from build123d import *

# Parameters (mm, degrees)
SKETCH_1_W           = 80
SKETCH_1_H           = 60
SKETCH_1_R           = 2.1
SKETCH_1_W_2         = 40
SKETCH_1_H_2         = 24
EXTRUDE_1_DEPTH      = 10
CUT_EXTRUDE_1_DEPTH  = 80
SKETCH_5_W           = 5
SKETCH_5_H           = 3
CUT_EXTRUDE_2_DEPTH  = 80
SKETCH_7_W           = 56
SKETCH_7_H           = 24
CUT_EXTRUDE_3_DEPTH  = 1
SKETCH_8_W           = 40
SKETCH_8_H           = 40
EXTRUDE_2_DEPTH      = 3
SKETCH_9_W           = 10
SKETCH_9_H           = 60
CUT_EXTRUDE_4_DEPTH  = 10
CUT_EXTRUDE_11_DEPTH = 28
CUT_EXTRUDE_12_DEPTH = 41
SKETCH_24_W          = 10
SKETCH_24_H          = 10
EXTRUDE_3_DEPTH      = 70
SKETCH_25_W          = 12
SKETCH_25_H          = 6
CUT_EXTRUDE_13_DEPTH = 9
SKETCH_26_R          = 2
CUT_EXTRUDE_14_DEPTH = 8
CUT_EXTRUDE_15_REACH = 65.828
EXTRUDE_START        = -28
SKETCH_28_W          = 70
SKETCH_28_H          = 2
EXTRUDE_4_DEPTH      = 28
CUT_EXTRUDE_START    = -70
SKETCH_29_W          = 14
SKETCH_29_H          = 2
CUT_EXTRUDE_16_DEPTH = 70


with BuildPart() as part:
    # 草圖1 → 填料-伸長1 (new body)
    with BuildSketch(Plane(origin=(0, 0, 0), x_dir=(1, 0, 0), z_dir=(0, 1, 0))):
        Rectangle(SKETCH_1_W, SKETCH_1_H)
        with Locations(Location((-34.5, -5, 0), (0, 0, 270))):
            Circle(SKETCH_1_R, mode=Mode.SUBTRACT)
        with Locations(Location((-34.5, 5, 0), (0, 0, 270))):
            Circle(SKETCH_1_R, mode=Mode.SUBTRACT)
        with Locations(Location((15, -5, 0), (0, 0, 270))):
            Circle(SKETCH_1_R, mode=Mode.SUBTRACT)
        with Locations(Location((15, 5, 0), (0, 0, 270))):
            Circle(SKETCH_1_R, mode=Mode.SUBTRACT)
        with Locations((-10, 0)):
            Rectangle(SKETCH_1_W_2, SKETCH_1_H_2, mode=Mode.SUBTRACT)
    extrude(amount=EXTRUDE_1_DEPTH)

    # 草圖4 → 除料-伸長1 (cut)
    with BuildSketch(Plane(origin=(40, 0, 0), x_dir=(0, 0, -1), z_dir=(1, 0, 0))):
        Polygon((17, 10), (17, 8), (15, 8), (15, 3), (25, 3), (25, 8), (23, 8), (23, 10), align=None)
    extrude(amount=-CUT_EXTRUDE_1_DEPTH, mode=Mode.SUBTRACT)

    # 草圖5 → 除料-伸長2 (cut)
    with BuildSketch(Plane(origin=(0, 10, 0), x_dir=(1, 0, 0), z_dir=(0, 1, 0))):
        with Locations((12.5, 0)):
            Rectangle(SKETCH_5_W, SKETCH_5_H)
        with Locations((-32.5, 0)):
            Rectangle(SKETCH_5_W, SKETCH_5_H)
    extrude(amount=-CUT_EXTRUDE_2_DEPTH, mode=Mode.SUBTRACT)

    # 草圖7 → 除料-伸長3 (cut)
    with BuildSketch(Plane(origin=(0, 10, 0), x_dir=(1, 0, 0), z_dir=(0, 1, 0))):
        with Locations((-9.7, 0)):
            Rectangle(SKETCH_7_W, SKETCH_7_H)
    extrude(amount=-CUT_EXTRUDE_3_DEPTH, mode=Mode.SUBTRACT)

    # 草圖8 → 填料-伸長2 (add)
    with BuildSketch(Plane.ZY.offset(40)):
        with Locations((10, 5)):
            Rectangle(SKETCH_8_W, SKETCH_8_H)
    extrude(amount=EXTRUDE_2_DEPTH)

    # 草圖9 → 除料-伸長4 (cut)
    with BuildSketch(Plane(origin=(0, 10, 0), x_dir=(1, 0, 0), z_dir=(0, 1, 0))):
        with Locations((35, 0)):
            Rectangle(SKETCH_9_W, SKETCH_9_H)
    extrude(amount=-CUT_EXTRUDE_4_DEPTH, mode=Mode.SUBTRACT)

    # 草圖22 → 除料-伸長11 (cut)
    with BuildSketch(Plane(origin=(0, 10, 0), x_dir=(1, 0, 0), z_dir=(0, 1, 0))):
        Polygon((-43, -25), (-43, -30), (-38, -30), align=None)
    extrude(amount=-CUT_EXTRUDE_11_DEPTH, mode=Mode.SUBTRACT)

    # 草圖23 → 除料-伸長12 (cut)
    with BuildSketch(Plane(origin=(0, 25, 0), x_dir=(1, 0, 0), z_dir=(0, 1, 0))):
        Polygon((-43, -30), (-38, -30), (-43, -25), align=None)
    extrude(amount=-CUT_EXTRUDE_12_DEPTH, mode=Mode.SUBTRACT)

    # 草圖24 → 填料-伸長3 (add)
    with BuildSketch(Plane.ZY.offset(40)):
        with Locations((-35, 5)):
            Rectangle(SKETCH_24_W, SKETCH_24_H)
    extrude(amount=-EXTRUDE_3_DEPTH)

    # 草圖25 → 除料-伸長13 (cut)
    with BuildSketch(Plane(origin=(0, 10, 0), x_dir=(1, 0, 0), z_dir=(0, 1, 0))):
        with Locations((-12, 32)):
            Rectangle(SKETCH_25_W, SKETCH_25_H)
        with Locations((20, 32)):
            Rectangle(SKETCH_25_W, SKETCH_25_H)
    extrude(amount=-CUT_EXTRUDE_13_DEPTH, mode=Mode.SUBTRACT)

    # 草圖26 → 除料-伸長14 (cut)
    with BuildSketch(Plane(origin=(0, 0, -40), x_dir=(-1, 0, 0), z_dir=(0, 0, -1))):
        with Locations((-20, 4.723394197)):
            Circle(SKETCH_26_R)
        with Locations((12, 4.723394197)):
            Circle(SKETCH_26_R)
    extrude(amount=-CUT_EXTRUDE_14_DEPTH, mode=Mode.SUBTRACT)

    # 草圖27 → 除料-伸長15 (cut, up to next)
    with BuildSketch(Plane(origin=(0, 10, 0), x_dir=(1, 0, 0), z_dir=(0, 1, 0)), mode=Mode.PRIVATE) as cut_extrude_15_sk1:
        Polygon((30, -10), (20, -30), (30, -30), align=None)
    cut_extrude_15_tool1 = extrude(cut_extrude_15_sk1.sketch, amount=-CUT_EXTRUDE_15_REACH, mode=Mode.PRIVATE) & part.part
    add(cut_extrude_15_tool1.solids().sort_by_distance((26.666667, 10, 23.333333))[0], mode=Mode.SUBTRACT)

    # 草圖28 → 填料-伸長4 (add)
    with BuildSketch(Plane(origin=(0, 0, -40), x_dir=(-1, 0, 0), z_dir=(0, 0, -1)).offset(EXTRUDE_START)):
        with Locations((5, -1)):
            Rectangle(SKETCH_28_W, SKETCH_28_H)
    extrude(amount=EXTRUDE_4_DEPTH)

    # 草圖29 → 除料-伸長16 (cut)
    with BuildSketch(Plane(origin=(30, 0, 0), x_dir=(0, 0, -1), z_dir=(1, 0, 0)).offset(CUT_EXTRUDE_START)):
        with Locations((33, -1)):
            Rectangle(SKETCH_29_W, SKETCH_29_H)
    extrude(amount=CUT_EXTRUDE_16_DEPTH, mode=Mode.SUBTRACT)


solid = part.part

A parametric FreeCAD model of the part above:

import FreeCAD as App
import Part
import Sketcher

V = App.Vector


def add_polygon(sketch, points):
    """Adds a closed chain of lines whose ends are joined by coincident constraints."""
    first, n = sketch.GeometryCount, len(points)
    for a, b in zip(points, points[1:] + points[:1]):
        sketch.addGeometry(Part.LineSegment(App.Vector(*a, 0), App.Vector(*b, 0)), False)
    for i in range(n):
        sketch.addConstraint(Sketcher.Constraint("Coincident", first + i, 2, first + (i + 1) % n, 1))

doc = App.newDocument("Part")
body = doc.addObject("PartDesign::Body", "Body")

# Sketch on XZ plane
sketch1 = body.newObject("Sketcher::SketchObject", "Sketch")
sketch1.AttachmentSupport = (doc.getObject("XZ_Plane"), [""])
sketch1.MapMode = "FlatFace"
add_polygon(sketch1, [(-40, -30), (-40, 30), (40, 30), (40, -30)])  # lines 0-3
sketch1.addGeometry(Part.Circle(V(-34.5, 5, 0), V(0, 0, 1), 2.1), False)  # 4
sketch1.addGeometry(Part.Circle(V(15, 5, 0), V(0, 0, 1), 2.1), False)  # 5
sketch1.addGeometry(Part.Circle(V(-34.5, -5, 0), V(0, 0, 1), 2.1), False)  # 6
add_polygon(sketch1, [(10, 12), (-30, 12), (-30, -12), (10, -12)])  # lines 7-10
sketch1.addGeometry(Part.Circle(V(15, -5, 0), V(0, 0, 1), 2.1), False)  # 11
sketch1.addConstraint([
    Sketcher.Constraint("Vertical", 0),
    Sketcher.Constraint("Horizontal", 1),
    Sketcher.Constraint("Vertical", 2),
    Sketcher.Constraint("Horizontal", 3),
    Sketcher.Constraint("Horizontal", 7),
    Sketcher.Constraint("Vertical", 8),
    Sketcher.Constraint("Horizontal", 9),
    Sketcher.Constraint("Vertical", 10),
    Sketcher.Constraint("Equal", 4, 5),
    Sketcher.Constraint("Equal", 5, 6),
    Sketcher.Constraint("Equal", 6, 11),
    Sketcher.Constraint("Symmetric", 0, 2, 2, 2, -1, 1),
    Sketcher.Constraint("Symmetric", 4, 3, 6, 3, -1),
    Sketcher.Constraint("Symmetric", 5, 3, 11, 3, -1),
    Sketcher.Constraint("Horizontal", 4, 3, 5, 3),
    Sketcher.Constraint("Diameter", 4, 4.2),
    Sketcher.Constraint("DistanceX", 1, 1, 1, 2, 80.0),
    Sketcher.Constraint("DistanceX", 7, 2, 7, 1, 40.0),
    Sketcher.Constraint("DistanceY", 0, 1, 0, 2, 60.0),
    Sketcher.Constraint("DistanceY", 8, 2, 8, 1, 24.0),
    Sketcher.Constraint("DistanceY", -1, 1, 4, 3, 5.0),
    Sketcher.Constraint("DistanceX", -1, 1, 5, 3, 15.0),
    Sketcher.Constraint("DistanceX", 7, 2, -1, 1, 30.0),
    Sketcher.Constraint("DistanceY", -1, 1, 7, 2, 12.0),
    Sketcher.Constraint("DistanceX", 4, 3, -1, 1, 34.5),
])
pad1 = body.newObject("PartDesign::Pad", "Pad")
pad1.Profile = sketch1
pad1.Length = 10
pad1.Reversed = True

# Sketch on YZ plane
sketch2 = body.newObject("Sketcher::SketchObject", "Sketch001")
sketch2.AttachmentSupport = (doc.getObject("YZ_Plane"), [""])
sketch2.MapMode = "FlatFace"
sketch2.AttachmentOffset = App.Placement(V(0, 0, 40), App.Rotation())
add_polygon(sketch2, [(10, -17), (8, -17), (8, -15), (3, -15), (3, -25), (8, -25), (8, -23), (10, -23)])  # lines 0-7
sketch2.addConstraint([
    Sketcher.Constraint("Horizontal", 0),
    Sketcher.Constraint("Vertical", 1),
    Sketcher.Constraint("Horizontal", 2),
    Sketcher.Constraint("Vertical", 3),
    Sketcher.Constraint("Horizontal", 4),
    Sketcher.Constraint("Vertical", 5),
    Sketcher.Constraint("Horizontal", 6),
    Sketcher.Constraint("Vertical", 7),
    Sketcher.Constraint("Vertical", 1, 2, 4, 2),
    Sketcher.Constraint("Equal", 6, 1),
    Sketcher.Constraint("Equal", 1, 5),
    Sketcher.Constraint("DistanceX", 0, 2, 0, 1, 2.0),
    Sketcher.Constraint("DistanceX", 2, 2, 2, 1, 5.0),
    Sketcher.Constraint("DistanceY", 3, 2, 3, 1, 10.0),
    Sketcher.Constraint("DistanceX", -1, 1, 0, 2, 8.0),
    Sketcher.Constraint("DistanceY", 0, 2, -1, 1, 17.0),
])
pocket1 = body.newObject("PartDesign::Pocket", "Pocket")
pocket1.Profile = sketch2
pocket1.Length = 80

# Sketch on XZ plane
sketch3 = body.newObject("Sketcher::SketchObject", "Sketch002")
sketch3.AttachmentSupport = (doc.getObject("XZ_Plane"), [""])
sketch3.MapMode = "FlatFace"
sketch3.AttachmentOffset = App.Placement(V(0, 0, -10), App.Rotation())
add_polygon(sketch3, [(10, -1.5), (10, 1.5), (15, 1.5), (15, -1.5)])  # lines 0-3
add_polygon(sketch3, [(-35, -1.5), (-35, 1.5), (-30, 1.5), (-30, -1.5)])  # lines 4-7
sketch3.addConstraint([
    Sketcher.Constraint("Vertical", 0),
    Sketcher.Constraint("Horizontal", 1),
    Sketcher.Constraint("Vertical", 2),
    Sketcher.Constraint("Horizontal", 3),
    Sketcher.Constraint("Vertical", 4),
    Sketcher.Constraint("Horizontal", 5),
    Sketcher.Constraint("Vertical", 6),
    Sketcher.Constraint("Horizontal", 7),
    Sketcher.Constraint("Horizontal", 1, 2, 4, 2),
    Sketcher.Constraint("Horizontal", 3, 2, 6, 2),
    Sketcher.Constraint("Equal", 3, 5),
    Sketcher.Constraint("DistanceX", 1, 1, 1, 2, 5.0),
    Sketcher.Constraint("DistanceY", 0, 1, 0, 2, 3.0),
    Sketcher.Constraint("DistanceX", -1, 1, 0, 2, 10.0),
    Sketcher.Constraint("DistanceX", 4, 2, -1, 1, 35.0),
    Sketcher.Constraint("DistanceY", -1, 1, 0, 2, 1.5),
])
pocket2 = body.newObject("PartDesign::Pocket", "Pocket001")
pocket2.Profile = sketch3
pocket2.Length = 80
pocket2.Reversed = True

# Sketch on XZ plane
sketch4 = body.newObject("Sketcher::SketchObject", "Sketch003")
sketch4.AttachmentSupport = (doc.getObject("XZ_Plane"), [""])
sketch4.MapMode = "FlatFace"
sketch4.AttachmentOffset = App.Placement(V(0, 0, -10), App.Rotation())
add_polygon(sketch4, [(-38, -12), (-38, 12), (18, 12), (18, -12)])  # lines 0-3
sketch4.addConstraint([
    Sketcher.Constraint("Vertical", 0),
    Sketcher.Constraint("Horizontal", 1),
    Sketcher.Constraint("Vertical", 2),
    Sketcher.Constraint("Horizontal", 3),
    Sketcher.Constraint("DistanceX", 1, 1, 1, 2, 56.0),
    Sketcher.Constraint("DistanceY", 0, 1, 0, 2, 24.0),
    Sketcher.Constraint("DistanceY", -1, 1, 0, 2, 12.0),
    Sketcher.Constraint("DistanceX", 0, 2, -1, 1, 37.7),
])
pocket3 = body.newObject("PartDesign::Pocket", "Pocket002")
pocket3.Profile = sketch4
pocket3.Length = 1
pocket3.Reversed = True

# Sketch on YZ plane
sketch5 = body.newObject("Sketcher::SketchObject", "Sketch004")
sketch5.AttachmentSupport = (doc.getObject("YZ_Plane"), [""])
sketch5.MapMode = "FlatFace"
sketch5.AttachmentOffset = App.Placement(V(0, 0, -40), App.Rotation())
add_polygon(sketch5, [(25, -10), (-15, -10), (-15, 30), (25, 30)])  # lines 0-3
sketch5.addConstraint([
    Sketcher.Constraint("Horizontal", 0),
    Sketcher.Constraint("Vertical", 1),
    Sketcher.Constraint("Horizontal", 2),
    Sketcher.Constraint("Vertical", 3),
    Sketcher.Constraint("Equal", 2, 1),
    Sketcher.Constraint("DistanceX", 0, 2, 0, 1, 40.0),
    Sketcher.Constraint("DistanceX", 0, 2, -1, 1, 15.0),
    Sketcher.Constraint("DistanceY", 0, 2, -1, 1, 10.0),
])
pad2 = body.newObject("PartDesign::Pad", "Pad001")
pad2.Profile = sketch5
pad2.Length = 3
pad2.Reversed = True

# Sketch on XZ plane
sketch6 = body.newObject("Sketcher::SketchObject", "Sketch005")
sketch6.AttachmentSupport = (doc.getObject("XZ_Plane"), [""])
sketch6.MapMode = "FlatFace"
sketch6.AttachmentOffset = App.Placement(V(0, 0, -10), App.Rotation())
add_polygon(sketch6, [(30, -30), (30, 30), (40, 30), (40, -30)])  # lines 0-3
sketch6.addConstraint([
    Sketcher.Constraint("Vertical", 0),
    Sketcher.Constraint("Horizontal", 1),
    Sketcher.Constraint("Vertical", 2),
    Sketcher.Constraint("Horizontal", 3),
    Sketcher.Constraint("DistanceX", 1, 1, 1, 2, 10.0),
    Sketcher.Constraint("DistanceY", 0, 1, 0, 2, 60.0),
    Sketcher.Constraint("DistanceX", -1, 1, 0, 2, 30.0),
    Sketcher.Constraint("DistanceY", -1, 1, 0, 2, 30.0),
])
pocket4 = body.newObject("PartDesign::Pocket", "Pocket003")
pocket4.Profile = sketch6
pocket4.Length = 10
pocket4.Reversed = True

# Sketch on XZ plane
sketch7 = body.newObject("Sketcher::SketchObject", "Sketch006")
sketch7.AttachmentSupport = (doc.getObject("XZ_Plane"), [""])
sketch7.MapMode = "FlatFace"
sketch7.AttachmentOffset = App.Placement(V(0, 0, -10), App.Rotation())
add_polygon(sketch7, [(-43, 25), (-43, 30), (-38, 30)])  # lines 0-2
sketch7.addConstraint([
    Sketcher.Constraint("Vertical", 0),
    Sketcher.Constraint("Horizontal", 1),
    Sketcher.Constraint("Equal", 1, 0),
    Sketcher.Constraint("DistanceX", 1, 1, 1, 2, 5.0),
    Sketcher.Constraint("DistanceX", 0, 2, -1, 1, 43.0),
    Sketcher.Constraint("DistanceY", -1, 1, 0, 2, 30.0),
])
pocket5 = body.newObject("PartDesign::Pocket", "Pocket004")
pocket5.Profile = sketch7
pocket5.Length = 28
pocket5.Reversed = True

# Sketch on XZ plane
sketch8 = body.newObject("Sketcher::SketchObject", "Sketch007")
sketch8.AttachmentSupport = (doc.getObject("XZ_Plane"), [""])
sketch8.MapMode = "FlatFace"
sketch8.AttachmentOffset = App.Placement(V(0, 0, -25), App.Rotation())
add_polygon(sketch8, [(-43, 30), (-38, 30), (-43, 25)])  # lines 0-2
sketch8.addConstraint([
    Sketcher.Constraint("Horizontal", 0),
    Sketcher.Constraint("Vertical", 2),
    Sketcher.Constraint("Equal", 0, 2),
    Sketcher.Constraint("DistanceX", 0, 1, 0, 2, 5.0),
    Sketcher.Constraint("DistanceX", 0, 2, -1, 1, 38.0),
    Sketcher.Constraint("DistanceY", -1, 1, 0, 2, 30.0),
])
pocket6 = body.newObject("PartDesign::Pocket", "Pocket005")
pocket6.Profile = sketch8
pocket6.Length = 41
pocket6.Reversed = True

# Sketch on YZ plane
sketch9 = body.newObject("Sketcher::SketchObject", "Sketch008")
sketch9.AttachmentSupport = (doc.getObject("YZ_Plane"), [""])
sketch9.MapMode = "FlatFace"
sketch9.AttachmentOffset = App.Placement(V(0, 0, -40), App.Rotation())
add_polygon(sketch9, [(10, -40), (0, -40), (0, -30), (10, -30)])  # lines 0-3
sketch9.addConstraint([
    Sketcher.Constraint("Horizontal", 0),
    Sketcher.Constraint("Vertical", 1),
    Sketcher.Constraint("Horizontal", 2),
    Sketcher.Constraint("Vertical", 3),
    Sketcher.Constraint("PointOnObject", 0, 2, -2),
    Sketcher.Constraint("Equal", 2, 1),
    Sketcher.Constraint("DistanceX", 0, 2, 0, 1, 10.0),
    Sketcher.Constraint("DistanceY", 0, 2, -1, 1, 40.0),
])
pad3 = body.newObject("PartDesign::Pad", "Pad002")
pad3.Profile = sketch9
pad3.Length = 70

# Sketch on XZ plane
sketch10 = body.newObject("Sketcher::SketchObject", "Sketch009")
sketch10.AttachmentSupport = (doc.getObject("XZ_Plane"), [""])
sketch10.MapMode = "FlatFace"
sketch10.AttachmentOffset = App.Placement(V(0, 0, -10), App.Rotation())
add_polygon(sketch10, [(-18, -35), (-18, -29), (-6, -29), (-6, -35)])  # lines 0-3
add_polygon(sketch10, [(14, -35), (14, -29), (26, -29), (26, -35)])  # lines 4-7
sketch10.addConstraint([
    Sketcher.Constraint("Vertical", 0),
    Sketcher.Constraint("Horizontal", 1),
    Sketcher.Constraint("Vertical", 2),
    Sketcher.Constraint("Horizontal", 3),
    Sketcher.Constraint("Vertical", 4),
    Sketcher.Constraint("Horizontal", 5),
    Sketcher.Constraint("Vertical", 6),
    Sketcher.Constraint("Horizontal", 7),
    Sketcher.Constraint("Horizontal", 1, 2, 4, 2),
    Sketcher.Constraint("Horizontal", 3, 2, 6, 2),
    Sketcher.Constraint("Equal", 3, 5),
    Sketcher.Constraint("DistanceX", 1, 1, 1, 2, 12.0),
    Sketcher.Constraint("DistanceY", 0, 1, 0, 2, 6.0),
    Sketcher.Constraint("DistanceX", 0, 2, -1, 1, 18.0),
    Sketcher.Constraint("DistanceY", 0, 2, -1, 1, 29.0),
    Sketcher.Constraint("DistanceX", -1, 1, 4, 2, 14.0),
])
pocket7 = body.newObject("PartDesign::Pocket", "Pocket006")
pocket7.Profile = sketch10
pocket7.Length = 9
pocket7.Reversed = True

# Sketch on XY plane
sketch11 = body.newObject("Sketcher::SketchObject", "Sketch010")
sketch11.AttachmentSupport = (doc.getObject("XY_Plane"), [""])
sketch11.MapMode = "FlatFace"
sketch11.AttachmentOffset = App.Placement(V(0, 0, -40), App.Rotation())
sketch11.addGeometry([
    Part.Circle(V(20, 4.7, 0), V(0, 0, 1), 2),
    Part.Circle(V(-12, 4.7, 0), V(0, 0, 1), 2),
], False)
sketch11.addConstraint([
    Sketcher.Constraint("Equal", 0, 1),
    Sketcher.Constraint("Horizontal", 0, 3, 1, 3),
    Sketcher.Constraint("Diameter", 0, 4.0),
    Sketcher.Constraint("DistanceX", -1, 1, 0, 3, 20.0),
    Sketcher.Constraint("DistanceX", 1, 3, -1, 1, 12.0),
    Sketcher.Constraint("DistanceY", -1, 1, 0, 3, 4.723394),
])
pocket8 = body.newObject("PartDesign::Pocket", "Pocket007")
pocket8.Profile = sketch11
pocket8.Length = 8
pocket8.Reversed = True

# Sketch on XZ plane
sketch12 = body.newObject("Sketcher::SketchObject", "Sketch011")
sketch12.AttachmentSupport = (doc.getObject("XZ_Plane"), [""])
sketch12.MapMode = "FlatFace"
sketch12.AttachmentOffset = App.Placement(V(0, 0, -10), App.Rotation())
add_polygon(sketch12, [(30, 10), (20, 30), (30, 30)])  # lines 0-2
sketch12.addConstraint([
    Sketcher.Constraint("Horizontal", 1),
    Sketcher.Constraint("Vertical", 2),
    Sketcher.Constraint("DistanceX", 1, 1, 1, 2, 10.0),
    Sketcher.Constraint("DistanceY", 2, 2, 2, 1, 20.0),
    Sketcher.Constraint("DistanceX", -1, 1, 0, 2, 20.0),
    Sketcher.Constraint("DistanceY", -1, 1, 0, 2, 30.0),
])
pocket9 = body.newObject("PartDesign::Pocket", "Pocket008")
pocket9.Profile = sketch12
pocket9.Type = "UpToFirst"
pocket9.Reversed = True

# Sketch on XY plane
sketch13 = body.newObject("Sketcher::SketchObject", "Sketch012")
sketch13.AttachmentSupport = (doc.getObject("XY_Plane"), [""])
sketch13.MapMode = "FlatFace"
sketch13.AttachmentOffset = App.Placement(V(0, 0, -12), App.Rotation())
add_polygon(sketch13, [(30, 0), (30, -2), (-40, -2), (-40, 0)])  # lines 0-3
sketch13.addConstraint([
    Sketcher.Constraint("Vertical", 0),
    Sketcher.Constraint("Horizontal", 1),
    Sketcher.Constraint("Vertical", 2),
    Sketcher.Constraint("Horizontal", 3),
    Sketcher.Constraint("PointOnObject", 2, 2, -1),
    Sketcher.Constraint("DistanceX", 1, 2, 1, 1, 70.0),
    Sketcher.Constraint("DistanceY", 0, 2, 0, 1, 2.0),
    Sketcher.Constraint("DistanceX", -1, 1, 0, 2, 30.0),
])
pad4 = body.newObject("PartDesign::Pad", "Pad003")
pad4.Profile = sketch13
pad4.Length = 28
pad4.Reversed = True

# Sketch on YZ plane
sketch14 = body.newObject("Sketcher::SketchObject", "Sketch013")
sketch14.AttachmentSupport = (doc.getObject("YZ_Plane"), [""])
sketch14.MapMode = "FlatFace"
sketch14.AttachmentOffset = App.Placement(V(0, 0, -40), App.Rotation())
add_polygon(sketch14, [(0, -26), (-2, -26), (-2, -40), (0, -40)])  # lines 0-3
sketch14.addConstraint([
    Sketcher.Constraint("Horizontal", 0),
    Sketcher.Constraint("Vertical", 1),
    Sketcher.Constraint("Horizontal", 2),
    Sketcher.Constraint("Vertical", 3),
    Sketcher.Constraint("PointOnObject", 2, 2, -2),
    Sketcher.Constraint("DistanceX", 0, 2, 0, 1, 2.0),
    Sketcher.Constraint("DistanceY", 1, 2, 1, 1, 14.0),
    Sketcher.Constraint("DistanceY", 0, 2, -1, 1, 26.0),
])
pocket10 = body.newObject("PartDesign::Pocket", "Pocket009")
pocket10.Profile = sketch14
pocket10.Length = 70
pocket10.Reversed = True

doc.recompute()
